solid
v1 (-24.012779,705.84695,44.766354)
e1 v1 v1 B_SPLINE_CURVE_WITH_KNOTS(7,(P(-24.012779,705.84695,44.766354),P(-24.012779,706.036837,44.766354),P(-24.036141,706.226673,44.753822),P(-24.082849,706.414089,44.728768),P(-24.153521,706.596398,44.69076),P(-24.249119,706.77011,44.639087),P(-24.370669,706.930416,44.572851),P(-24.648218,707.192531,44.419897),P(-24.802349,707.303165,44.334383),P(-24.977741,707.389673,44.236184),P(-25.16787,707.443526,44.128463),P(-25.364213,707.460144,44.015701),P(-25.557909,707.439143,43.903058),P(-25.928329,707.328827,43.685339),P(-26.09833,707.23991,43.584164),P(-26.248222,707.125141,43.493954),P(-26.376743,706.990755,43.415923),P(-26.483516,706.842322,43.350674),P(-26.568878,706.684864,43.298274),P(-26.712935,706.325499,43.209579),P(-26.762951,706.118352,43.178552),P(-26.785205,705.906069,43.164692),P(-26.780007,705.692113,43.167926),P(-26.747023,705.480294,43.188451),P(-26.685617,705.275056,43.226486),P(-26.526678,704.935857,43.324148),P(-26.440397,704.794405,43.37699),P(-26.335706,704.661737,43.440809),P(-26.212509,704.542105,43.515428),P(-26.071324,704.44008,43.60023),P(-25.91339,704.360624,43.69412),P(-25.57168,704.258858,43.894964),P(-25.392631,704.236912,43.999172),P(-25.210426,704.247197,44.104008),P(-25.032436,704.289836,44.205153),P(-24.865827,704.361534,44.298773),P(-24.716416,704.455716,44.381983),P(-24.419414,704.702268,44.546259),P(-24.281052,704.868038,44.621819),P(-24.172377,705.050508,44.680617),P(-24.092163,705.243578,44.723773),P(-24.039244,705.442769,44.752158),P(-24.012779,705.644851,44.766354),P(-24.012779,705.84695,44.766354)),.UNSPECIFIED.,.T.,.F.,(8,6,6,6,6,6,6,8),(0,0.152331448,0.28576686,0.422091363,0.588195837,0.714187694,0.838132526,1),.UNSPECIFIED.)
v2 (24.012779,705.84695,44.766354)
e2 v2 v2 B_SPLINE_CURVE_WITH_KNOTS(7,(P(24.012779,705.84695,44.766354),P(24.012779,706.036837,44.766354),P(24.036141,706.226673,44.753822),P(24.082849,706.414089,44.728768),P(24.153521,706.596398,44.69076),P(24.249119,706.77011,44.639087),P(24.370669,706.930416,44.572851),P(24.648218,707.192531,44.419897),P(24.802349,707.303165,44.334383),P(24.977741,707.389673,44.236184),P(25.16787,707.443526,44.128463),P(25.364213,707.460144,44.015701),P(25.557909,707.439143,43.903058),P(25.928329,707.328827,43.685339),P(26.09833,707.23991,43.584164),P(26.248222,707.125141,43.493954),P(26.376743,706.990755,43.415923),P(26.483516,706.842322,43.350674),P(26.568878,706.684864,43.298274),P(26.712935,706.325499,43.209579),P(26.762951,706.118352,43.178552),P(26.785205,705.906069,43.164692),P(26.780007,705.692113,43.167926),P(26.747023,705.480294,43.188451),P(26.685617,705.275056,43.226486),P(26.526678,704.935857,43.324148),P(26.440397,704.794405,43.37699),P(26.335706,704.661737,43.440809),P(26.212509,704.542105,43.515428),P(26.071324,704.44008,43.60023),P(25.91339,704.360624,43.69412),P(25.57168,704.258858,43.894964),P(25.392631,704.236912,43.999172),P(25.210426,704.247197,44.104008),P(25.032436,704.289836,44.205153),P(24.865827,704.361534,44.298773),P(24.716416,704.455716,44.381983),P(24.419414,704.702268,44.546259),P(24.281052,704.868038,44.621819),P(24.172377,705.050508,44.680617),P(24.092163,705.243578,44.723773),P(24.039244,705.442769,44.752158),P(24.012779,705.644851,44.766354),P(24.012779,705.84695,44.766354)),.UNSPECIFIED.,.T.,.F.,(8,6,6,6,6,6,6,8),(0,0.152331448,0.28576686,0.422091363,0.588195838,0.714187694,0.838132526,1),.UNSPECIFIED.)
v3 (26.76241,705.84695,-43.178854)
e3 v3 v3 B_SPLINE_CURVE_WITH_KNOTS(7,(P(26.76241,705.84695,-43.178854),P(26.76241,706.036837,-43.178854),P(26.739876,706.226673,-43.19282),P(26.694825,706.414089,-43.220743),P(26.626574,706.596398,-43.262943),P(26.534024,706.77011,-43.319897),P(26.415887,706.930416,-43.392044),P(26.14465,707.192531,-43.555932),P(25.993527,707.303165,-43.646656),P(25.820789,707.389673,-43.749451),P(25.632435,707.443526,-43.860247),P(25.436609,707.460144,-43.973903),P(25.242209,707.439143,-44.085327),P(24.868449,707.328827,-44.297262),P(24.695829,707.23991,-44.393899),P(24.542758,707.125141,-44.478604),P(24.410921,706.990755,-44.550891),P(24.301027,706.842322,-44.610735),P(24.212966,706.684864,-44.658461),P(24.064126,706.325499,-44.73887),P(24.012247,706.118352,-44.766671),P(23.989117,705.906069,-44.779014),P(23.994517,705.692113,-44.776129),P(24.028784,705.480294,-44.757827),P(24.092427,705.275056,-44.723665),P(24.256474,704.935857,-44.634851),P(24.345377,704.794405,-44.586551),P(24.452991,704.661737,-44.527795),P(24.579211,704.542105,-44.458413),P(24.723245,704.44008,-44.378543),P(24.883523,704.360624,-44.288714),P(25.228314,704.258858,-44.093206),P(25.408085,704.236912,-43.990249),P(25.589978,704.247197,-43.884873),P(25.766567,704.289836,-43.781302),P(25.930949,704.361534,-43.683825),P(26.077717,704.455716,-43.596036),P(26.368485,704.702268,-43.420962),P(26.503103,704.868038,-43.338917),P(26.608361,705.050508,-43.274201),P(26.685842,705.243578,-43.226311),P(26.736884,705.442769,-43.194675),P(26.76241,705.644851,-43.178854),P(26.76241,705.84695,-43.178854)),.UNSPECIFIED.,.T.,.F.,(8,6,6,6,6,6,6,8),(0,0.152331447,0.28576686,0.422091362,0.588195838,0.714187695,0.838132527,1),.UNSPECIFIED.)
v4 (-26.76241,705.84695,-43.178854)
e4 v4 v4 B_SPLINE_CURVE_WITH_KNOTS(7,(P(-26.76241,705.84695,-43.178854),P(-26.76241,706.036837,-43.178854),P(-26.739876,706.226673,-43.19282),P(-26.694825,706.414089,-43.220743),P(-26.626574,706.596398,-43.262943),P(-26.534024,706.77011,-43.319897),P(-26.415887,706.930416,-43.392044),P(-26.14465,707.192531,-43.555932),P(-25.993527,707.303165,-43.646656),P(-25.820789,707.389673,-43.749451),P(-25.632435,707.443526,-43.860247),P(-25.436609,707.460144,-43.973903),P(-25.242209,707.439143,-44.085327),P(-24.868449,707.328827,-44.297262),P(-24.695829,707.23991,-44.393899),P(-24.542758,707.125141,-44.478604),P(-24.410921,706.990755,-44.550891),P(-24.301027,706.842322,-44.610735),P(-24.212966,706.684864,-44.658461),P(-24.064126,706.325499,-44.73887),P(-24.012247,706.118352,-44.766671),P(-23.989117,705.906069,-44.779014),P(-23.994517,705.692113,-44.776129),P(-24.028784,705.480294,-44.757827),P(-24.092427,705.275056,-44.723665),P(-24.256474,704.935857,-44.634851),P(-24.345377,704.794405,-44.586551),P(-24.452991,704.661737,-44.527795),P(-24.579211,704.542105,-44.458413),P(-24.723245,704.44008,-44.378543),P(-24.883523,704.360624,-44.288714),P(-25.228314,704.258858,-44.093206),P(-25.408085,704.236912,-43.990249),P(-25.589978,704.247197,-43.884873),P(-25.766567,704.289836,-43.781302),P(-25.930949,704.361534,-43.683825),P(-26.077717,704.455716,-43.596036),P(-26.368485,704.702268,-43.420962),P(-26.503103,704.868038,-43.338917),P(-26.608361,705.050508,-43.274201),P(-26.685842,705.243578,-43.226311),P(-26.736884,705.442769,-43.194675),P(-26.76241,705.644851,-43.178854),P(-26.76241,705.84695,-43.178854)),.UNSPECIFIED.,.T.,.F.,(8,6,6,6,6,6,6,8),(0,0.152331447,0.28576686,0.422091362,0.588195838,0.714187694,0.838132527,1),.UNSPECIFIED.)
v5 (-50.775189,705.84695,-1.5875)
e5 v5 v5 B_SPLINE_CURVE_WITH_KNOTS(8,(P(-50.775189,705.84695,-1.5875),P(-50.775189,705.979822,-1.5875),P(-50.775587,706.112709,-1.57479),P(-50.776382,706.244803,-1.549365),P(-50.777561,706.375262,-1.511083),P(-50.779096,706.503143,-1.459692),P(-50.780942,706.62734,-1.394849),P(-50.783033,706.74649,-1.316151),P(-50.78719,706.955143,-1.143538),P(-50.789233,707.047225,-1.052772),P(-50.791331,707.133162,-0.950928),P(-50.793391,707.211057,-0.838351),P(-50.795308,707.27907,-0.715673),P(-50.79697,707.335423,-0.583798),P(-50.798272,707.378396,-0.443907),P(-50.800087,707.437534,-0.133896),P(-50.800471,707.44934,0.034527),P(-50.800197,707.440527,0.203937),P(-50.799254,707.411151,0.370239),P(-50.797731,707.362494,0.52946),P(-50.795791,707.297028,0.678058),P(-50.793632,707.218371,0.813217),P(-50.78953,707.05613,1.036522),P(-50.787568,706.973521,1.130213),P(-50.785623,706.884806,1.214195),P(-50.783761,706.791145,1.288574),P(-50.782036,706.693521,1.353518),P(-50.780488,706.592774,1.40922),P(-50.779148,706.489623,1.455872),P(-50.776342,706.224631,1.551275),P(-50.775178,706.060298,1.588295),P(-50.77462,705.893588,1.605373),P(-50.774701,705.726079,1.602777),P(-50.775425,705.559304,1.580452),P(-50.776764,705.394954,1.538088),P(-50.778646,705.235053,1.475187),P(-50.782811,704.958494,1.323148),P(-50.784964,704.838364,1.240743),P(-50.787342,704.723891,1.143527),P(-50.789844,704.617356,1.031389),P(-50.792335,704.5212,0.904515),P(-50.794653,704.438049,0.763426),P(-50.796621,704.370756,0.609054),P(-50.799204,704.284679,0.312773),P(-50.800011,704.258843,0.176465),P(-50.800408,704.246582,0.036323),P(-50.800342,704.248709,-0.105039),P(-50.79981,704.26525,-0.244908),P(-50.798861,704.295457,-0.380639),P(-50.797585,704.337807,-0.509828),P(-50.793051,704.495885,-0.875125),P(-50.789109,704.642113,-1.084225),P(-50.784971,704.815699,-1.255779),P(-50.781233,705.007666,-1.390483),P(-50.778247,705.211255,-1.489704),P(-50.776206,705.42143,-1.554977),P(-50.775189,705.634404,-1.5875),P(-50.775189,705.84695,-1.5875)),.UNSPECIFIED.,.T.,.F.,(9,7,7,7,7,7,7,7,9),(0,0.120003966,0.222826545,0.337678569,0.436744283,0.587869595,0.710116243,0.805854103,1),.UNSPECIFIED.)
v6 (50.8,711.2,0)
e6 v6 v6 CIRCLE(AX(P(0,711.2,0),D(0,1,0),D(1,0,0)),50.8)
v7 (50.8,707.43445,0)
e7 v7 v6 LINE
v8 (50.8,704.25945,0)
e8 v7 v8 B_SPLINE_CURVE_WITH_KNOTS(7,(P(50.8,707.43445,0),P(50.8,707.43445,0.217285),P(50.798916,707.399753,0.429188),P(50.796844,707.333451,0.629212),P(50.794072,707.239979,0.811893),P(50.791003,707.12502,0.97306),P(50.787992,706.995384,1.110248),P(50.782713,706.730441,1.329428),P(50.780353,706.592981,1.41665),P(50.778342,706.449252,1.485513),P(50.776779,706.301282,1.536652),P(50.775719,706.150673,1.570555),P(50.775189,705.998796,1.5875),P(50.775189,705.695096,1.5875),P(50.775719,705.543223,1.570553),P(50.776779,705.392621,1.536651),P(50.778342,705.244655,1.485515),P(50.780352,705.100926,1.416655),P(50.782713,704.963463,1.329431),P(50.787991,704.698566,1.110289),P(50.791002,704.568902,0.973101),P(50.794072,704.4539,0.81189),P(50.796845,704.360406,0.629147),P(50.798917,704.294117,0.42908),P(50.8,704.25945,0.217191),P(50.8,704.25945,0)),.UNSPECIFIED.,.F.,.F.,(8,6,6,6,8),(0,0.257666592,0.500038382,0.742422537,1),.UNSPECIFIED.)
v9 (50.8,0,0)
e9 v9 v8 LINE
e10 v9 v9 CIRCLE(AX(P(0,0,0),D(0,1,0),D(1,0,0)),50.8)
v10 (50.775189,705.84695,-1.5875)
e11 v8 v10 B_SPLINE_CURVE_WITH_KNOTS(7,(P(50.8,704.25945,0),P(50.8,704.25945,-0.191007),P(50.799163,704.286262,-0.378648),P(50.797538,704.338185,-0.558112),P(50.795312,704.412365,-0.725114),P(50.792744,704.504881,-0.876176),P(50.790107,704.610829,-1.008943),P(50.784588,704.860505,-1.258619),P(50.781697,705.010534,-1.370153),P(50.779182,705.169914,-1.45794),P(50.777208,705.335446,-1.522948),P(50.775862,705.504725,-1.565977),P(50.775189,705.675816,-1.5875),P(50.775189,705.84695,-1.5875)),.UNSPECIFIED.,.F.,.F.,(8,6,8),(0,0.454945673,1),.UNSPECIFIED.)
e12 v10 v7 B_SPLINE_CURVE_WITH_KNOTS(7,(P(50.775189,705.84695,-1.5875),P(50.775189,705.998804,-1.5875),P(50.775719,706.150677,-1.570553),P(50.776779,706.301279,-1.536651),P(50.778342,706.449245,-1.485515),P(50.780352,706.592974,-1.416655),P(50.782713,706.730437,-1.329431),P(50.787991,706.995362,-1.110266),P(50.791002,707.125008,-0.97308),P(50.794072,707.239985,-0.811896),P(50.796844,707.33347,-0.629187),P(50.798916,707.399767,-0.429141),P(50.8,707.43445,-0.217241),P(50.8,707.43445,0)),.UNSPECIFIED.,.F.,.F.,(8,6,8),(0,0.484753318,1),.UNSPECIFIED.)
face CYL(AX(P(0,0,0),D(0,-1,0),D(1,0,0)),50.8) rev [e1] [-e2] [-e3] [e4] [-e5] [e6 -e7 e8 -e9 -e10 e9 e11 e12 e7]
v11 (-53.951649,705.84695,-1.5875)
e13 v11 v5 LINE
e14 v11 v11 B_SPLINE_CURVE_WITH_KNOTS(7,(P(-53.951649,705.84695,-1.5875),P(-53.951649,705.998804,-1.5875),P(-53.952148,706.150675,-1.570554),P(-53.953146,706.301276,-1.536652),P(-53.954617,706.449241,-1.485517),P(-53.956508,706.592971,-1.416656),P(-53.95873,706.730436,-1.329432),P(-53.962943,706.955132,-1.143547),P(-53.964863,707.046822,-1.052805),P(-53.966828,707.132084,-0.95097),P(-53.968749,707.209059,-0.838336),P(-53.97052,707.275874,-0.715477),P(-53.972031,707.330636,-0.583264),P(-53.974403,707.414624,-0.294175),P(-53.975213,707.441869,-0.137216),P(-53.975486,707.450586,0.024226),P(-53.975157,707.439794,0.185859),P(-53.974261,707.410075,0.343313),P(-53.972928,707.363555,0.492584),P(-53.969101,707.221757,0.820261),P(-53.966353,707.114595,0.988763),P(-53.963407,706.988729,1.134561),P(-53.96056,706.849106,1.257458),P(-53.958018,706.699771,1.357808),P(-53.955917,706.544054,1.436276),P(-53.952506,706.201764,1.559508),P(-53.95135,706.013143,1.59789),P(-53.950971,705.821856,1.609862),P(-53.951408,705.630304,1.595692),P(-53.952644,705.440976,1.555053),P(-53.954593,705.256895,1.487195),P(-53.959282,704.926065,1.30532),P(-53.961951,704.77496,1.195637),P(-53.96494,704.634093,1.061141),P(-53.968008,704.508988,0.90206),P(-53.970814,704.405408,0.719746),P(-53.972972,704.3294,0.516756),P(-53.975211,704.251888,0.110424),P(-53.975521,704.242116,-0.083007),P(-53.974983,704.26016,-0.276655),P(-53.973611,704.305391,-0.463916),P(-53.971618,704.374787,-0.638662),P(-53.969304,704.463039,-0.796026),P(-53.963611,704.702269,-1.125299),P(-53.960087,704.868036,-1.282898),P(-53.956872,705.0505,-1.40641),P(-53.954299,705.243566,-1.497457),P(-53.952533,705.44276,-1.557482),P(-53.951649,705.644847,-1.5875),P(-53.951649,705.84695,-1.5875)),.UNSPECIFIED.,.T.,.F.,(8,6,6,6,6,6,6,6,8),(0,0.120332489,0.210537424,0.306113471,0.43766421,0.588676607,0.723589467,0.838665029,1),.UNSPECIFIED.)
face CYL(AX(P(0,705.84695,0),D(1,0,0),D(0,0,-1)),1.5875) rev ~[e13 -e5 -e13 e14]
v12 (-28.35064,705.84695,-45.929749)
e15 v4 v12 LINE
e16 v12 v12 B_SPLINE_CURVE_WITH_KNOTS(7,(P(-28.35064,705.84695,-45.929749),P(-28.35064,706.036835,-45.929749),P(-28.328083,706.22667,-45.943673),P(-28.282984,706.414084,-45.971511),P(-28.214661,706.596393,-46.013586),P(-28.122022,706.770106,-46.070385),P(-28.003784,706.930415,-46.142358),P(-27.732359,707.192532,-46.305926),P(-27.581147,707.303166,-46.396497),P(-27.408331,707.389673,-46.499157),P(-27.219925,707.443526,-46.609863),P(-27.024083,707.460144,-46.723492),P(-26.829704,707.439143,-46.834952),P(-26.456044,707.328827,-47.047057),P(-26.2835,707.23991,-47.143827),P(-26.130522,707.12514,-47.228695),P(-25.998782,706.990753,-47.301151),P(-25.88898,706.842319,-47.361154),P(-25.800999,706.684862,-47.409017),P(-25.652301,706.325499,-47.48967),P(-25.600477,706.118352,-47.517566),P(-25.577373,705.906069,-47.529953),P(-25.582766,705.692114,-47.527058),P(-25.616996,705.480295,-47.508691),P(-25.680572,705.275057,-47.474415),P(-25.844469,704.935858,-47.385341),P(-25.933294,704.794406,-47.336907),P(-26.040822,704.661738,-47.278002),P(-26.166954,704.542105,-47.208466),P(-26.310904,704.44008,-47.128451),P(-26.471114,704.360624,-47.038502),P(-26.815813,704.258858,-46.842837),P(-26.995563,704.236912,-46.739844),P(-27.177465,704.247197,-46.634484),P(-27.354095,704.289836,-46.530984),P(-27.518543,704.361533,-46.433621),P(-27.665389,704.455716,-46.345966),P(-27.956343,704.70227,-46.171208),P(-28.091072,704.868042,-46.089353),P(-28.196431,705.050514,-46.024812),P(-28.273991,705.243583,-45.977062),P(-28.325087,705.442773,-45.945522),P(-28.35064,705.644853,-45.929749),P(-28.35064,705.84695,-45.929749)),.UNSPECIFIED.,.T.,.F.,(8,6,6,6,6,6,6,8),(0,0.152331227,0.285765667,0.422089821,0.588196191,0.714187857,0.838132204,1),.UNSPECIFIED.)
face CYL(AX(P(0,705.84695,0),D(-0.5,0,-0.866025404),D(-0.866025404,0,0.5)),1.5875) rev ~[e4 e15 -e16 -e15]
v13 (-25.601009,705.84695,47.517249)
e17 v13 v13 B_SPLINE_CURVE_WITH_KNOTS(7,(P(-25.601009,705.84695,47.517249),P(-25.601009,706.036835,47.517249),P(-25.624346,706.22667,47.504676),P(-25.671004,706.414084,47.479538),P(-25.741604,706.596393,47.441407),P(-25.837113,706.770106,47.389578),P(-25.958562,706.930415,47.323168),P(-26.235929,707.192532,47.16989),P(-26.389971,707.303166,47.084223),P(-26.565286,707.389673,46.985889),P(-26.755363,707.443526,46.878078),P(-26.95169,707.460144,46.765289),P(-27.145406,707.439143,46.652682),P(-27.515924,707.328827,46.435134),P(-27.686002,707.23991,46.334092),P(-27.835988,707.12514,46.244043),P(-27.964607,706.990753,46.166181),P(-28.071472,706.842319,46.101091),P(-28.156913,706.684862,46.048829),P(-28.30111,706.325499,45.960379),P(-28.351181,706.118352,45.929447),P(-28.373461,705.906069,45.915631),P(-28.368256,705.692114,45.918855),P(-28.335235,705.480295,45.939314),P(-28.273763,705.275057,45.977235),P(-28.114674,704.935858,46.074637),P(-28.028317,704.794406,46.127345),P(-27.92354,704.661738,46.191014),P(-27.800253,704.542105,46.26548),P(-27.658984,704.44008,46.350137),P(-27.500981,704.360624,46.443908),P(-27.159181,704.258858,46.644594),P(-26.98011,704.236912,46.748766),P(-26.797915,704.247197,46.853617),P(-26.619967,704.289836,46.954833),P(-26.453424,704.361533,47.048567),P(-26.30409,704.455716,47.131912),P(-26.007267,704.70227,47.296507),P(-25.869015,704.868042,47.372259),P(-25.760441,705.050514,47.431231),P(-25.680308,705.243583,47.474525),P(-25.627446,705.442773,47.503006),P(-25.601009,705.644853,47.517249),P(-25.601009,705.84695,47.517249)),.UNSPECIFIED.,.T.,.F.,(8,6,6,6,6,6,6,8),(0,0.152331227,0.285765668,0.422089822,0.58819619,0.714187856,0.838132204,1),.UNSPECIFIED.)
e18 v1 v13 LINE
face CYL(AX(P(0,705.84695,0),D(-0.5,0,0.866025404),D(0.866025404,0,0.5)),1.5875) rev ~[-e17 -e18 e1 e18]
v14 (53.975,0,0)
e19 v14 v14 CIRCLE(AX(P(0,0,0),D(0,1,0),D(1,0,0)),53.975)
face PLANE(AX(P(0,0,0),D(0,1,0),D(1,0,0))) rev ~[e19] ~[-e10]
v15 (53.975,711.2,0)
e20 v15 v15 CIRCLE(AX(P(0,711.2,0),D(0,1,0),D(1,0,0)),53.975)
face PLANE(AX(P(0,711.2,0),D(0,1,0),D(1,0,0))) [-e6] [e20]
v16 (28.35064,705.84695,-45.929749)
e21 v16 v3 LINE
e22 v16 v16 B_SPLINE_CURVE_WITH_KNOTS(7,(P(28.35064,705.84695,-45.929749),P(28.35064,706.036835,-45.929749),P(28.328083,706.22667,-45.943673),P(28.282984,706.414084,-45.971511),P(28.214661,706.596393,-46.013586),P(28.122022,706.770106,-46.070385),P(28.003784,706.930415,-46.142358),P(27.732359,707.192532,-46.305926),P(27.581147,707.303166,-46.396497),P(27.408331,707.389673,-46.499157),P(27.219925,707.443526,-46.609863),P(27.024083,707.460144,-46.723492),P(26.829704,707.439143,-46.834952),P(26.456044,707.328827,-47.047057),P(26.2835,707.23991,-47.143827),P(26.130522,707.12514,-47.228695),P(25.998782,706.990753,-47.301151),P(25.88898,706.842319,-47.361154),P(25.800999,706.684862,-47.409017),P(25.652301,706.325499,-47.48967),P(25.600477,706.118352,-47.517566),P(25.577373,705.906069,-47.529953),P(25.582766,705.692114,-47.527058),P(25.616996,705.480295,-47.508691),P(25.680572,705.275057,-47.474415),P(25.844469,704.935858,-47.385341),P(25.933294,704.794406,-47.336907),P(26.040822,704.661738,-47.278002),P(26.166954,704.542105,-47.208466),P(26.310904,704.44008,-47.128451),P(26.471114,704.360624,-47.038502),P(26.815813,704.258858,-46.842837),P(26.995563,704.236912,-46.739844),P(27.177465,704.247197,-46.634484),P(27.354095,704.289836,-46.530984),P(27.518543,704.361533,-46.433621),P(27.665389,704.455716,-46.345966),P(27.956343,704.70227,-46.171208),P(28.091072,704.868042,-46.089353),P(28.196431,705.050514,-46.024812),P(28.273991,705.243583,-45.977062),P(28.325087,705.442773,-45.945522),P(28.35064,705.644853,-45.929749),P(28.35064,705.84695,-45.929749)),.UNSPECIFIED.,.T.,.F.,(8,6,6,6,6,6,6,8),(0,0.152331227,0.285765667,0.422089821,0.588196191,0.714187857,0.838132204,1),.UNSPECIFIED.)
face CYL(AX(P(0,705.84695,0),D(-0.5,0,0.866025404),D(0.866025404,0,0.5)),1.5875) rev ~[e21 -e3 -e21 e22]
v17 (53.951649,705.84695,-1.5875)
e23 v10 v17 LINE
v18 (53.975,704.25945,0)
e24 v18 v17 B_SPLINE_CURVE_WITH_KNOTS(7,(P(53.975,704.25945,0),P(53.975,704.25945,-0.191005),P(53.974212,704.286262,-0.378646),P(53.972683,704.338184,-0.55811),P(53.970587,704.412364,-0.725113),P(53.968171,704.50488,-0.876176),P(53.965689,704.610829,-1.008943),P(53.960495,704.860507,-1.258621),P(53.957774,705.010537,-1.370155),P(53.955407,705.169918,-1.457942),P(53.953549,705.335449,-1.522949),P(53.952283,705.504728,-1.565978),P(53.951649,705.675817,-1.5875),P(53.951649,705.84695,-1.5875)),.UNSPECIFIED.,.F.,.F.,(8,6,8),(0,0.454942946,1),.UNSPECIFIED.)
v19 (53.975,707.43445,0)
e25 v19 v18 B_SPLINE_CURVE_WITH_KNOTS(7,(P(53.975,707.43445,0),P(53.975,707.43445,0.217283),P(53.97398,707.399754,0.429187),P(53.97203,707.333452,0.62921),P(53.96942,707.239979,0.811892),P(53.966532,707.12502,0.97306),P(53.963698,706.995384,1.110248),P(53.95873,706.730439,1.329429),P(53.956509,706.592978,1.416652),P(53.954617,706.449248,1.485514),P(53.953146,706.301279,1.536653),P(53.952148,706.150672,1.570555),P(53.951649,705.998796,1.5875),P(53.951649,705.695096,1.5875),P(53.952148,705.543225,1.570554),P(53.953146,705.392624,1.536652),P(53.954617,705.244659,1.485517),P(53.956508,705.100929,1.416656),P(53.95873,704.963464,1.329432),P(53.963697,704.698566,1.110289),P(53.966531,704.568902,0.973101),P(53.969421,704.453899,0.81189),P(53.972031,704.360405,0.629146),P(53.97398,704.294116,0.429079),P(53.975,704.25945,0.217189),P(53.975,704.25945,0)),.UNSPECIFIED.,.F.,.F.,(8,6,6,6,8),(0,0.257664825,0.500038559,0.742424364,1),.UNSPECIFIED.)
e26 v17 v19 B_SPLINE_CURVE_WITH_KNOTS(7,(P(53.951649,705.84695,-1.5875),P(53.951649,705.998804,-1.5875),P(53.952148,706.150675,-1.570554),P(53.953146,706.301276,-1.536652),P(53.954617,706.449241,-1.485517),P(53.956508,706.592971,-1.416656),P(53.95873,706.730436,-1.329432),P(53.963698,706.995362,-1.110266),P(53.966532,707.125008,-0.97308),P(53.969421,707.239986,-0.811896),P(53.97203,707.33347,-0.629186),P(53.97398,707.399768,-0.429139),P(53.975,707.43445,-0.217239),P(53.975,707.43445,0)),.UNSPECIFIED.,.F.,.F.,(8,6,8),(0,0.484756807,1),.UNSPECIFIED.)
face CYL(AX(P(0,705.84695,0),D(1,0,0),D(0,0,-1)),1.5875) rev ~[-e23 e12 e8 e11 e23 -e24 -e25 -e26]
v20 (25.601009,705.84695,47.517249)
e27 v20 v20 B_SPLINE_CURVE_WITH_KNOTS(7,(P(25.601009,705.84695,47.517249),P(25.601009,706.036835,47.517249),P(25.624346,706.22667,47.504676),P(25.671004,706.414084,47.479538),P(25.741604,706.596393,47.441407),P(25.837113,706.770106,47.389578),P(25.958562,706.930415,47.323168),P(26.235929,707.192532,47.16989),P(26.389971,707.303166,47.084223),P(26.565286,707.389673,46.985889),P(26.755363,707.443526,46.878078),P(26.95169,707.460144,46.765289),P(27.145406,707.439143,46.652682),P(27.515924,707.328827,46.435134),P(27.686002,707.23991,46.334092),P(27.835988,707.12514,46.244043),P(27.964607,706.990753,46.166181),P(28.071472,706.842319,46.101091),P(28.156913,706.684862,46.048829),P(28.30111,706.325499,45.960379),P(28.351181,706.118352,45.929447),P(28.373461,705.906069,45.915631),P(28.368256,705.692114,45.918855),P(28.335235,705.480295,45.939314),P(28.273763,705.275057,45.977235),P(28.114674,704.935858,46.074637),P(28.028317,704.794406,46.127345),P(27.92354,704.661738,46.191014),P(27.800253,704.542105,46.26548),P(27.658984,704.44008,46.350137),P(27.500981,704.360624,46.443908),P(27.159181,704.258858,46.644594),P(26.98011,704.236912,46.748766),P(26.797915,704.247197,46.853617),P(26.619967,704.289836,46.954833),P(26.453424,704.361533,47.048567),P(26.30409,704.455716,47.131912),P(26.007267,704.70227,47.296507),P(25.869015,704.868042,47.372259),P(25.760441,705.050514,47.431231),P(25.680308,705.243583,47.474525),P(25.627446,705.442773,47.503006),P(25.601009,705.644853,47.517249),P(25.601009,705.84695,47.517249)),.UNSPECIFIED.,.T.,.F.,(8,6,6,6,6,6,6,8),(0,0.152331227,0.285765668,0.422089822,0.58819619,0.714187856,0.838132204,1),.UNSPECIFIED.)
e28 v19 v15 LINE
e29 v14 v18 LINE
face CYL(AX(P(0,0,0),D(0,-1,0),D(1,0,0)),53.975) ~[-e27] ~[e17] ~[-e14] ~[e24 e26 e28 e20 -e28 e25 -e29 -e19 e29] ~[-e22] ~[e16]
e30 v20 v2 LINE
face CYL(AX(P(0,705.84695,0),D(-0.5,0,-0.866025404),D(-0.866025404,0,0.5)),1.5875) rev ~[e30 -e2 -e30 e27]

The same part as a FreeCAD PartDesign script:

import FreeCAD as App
import Part
import Sketcher

V = App.Vector
Q = App.Units.Quantity

doc = App.newDocument("Part")
body = doc.addObject("PartDesign::Body", "Body")

# Sketch on XZ plane
sketch1 = body.newObject("Sketcher::SketchObject", "Sketch")
sketch1.AttachmentSupport = (doc.getObject("XZ_Plane"), [""])
sketch1.MapMode = "FlatFace"
sketch1.addGeometry([
    Part.Circle(V(0, 0, 0), V(0, 0, 1), 54),
    Part.Circle(V(0, 0, 0), V(0, 0, 1), 51),
], False)
sketch1.addConstraint([
    Sketcher.Constraint("Coincident", 0, 3, -1, 1),
    Sketcher.Constraint("Coincident", 1, 3, -1, 1),
    Sketcher.Constraint("Diameter", 1, Q("4 in")),
    Sketcher.Constraint("Diameter", 0, Q("4.25 in")),
])
pad1 = body.newObject("PartDesign::Pad", "Pad")
pad1.Profile = sketch1
pad1.Length = Q("28 in")
pad1.Reversed = True

# Sketch on YZ plane
sketch2 = body.newObject("Sketcher::SketchObject", "Sketch001")
sketch2.AttachmentSupport = (doc.getObject("YZ_Plane"), [""])
sketch2.MapMode = "FlatFace"
sketch2.addGeometry(Part.Circle(V(705.8, 0, 0), V(0, 0, 1), 1.6), False)
sketch2.addConstraint([
    Sketcher.Constraint("PointOnObject", 0, 3, -1),
    Sketcher.Constraint("Diameter", 0, Q("0.125 in")),
    Sketcher.Constraint("DistanceX", -1, 1, 0, 3, Q("705.84695 mm")),
])
pocket1 = body.newObject("PartDesign::Pocket", "Pocket")
pocket1.Profile = sketch2
pocket1.Length = 109.95
pocket1.Midplane = True
doc.recompute()

polarpattern = body.newObject("PartDesign::PolarPattern", "PolarPattern")
polarpattern.Originals = [pocket1]
polarpattern.Axis = (doc.getObject("Y_Axis"), [""])
polarpattern.Angle = 360
polarpattern.Occurrences = 3
body.Tip = polarpattern

doc.recompute()
